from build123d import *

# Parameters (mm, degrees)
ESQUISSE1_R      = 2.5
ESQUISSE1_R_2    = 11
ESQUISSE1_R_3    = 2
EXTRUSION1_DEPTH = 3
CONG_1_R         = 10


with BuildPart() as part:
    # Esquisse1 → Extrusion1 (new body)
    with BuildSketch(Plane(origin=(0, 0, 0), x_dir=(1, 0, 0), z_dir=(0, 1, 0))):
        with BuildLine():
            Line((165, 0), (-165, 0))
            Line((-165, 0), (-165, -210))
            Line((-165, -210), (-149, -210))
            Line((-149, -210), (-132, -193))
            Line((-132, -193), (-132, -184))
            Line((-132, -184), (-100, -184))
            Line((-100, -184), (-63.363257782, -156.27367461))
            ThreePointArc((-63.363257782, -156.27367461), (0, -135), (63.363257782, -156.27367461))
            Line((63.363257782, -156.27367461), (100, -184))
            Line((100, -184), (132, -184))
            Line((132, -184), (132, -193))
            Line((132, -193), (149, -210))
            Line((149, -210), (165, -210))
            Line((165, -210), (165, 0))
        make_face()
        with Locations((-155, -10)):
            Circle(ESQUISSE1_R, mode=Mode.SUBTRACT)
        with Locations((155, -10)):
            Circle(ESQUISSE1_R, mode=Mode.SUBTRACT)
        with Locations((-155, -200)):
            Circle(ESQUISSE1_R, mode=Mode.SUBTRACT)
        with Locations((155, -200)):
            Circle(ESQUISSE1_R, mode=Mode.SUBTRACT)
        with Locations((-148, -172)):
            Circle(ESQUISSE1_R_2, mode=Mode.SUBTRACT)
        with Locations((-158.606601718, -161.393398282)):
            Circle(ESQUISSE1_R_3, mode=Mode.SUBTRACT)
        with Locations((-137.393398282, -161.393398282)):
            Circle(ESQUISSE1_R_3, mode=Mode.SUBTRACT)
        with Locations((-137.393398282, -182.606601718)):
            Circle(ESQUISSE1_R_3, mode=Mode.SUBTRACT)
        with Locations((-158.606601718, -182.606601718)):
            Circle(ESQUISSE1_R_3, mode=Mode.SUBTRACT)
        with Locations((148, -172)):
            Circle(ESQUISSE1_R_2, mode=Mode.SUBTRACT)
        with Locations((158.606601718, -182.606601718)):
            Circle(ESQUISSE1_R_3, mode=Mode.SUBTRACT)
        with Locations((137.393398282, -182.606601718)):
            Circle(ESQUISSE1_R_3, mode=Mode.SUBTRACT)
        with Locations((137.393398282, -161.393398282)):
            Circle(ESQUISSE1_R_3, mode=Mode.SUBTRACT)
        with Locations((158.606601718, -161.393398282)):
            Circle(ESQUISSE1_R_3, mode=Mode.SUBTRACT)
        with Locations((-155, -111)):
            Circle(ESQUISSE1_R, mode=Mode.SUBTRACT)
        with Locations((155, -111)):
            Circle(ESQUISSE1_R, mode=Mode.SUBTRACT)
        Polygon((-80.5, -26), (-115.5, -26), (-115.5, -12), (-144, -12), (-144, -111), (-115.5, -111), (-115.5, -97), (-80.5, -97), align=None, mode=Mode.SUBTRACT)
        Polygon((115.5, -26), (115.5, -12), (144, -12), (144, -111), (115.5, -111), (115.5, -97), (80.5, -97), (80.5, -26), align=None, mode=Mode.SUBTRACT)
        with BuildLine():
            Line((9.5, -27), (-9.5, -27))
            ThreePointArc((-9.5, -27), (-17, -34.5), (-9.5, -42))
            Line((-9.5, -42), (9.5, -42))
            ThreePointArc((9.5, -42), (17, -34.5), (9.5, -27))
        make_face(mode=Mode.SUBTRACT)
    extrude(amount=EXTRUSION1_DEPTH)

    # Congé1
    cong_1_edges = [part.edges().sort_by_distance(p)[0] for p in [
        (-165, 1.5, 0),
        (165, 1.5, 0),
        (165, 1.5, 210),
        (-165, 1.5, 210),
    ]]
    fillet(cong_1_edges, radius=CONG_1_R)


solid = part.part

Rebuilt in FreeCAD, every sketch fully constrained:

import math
import FreeCAD as App
import Part
import Sketcher

V = App.Vector
Q = App.Units.Quantity


def edges_at(feature, points):
    """Names of the edges that pass closest to the given points."""
    edges = feature.Shape.Edges
    near = lambda p: min(range(len(edges)), key=lambda i: edges[i].distToShape(Part.Vertex(*p))[0])
    return sorted({f"Edge{near(p) + 1}" for p in points})


def add_polygon(sketch, points):
    """Adds a closed chain of lines whose ends are joined by coincident constraints."""
    first, n = sketch.GeometryCount, len(points)
    for a, b in zip(points, points[1:] + points[:1]):
        sketch.addGeometry(Part.LineSegment(App.Vector(*a, 0), App.Vector(*b, 0)), False)
    for i in range(n):
        sketch.addConstraint(Sketcher.Constraint("Coincident", first + i, 2, first + (i + 1) % n, 1))

doc = App.newDocument("Part")
body = doc.addObject("PartDesign::Body", "Body")

# Sketch on XZ plane
sketch1 = body.newObject("Sketcher::SketchObject", "Sketch")
sketch1.AttachmentSupport = (doc.getObject("XZ_Plane"), [""])
sketch1.MapMode = "FlatFace"
sketch1.addGeometry(Part.LineSegment(V(165, 0, 0), V(-165, 0, 0)), False)  # 0
sketch1.addGeometry(Part.LineSegment(V(-165, 0, 0), V(-165, 210, 0)), False)  # 1
sketch1.addGeometry(Part.LineSegment(V(-165, 210, 0), V(-149, 210, 0)), False)  # 2
sketch1.addGeometry(Part.LineSegment(V(-149, 210, 0), V(-132, 193, 0)), False)  # 3
sketch1.addGeometry(Part.LineSegment(V(-132, 193, 0), V(-132, 184, 0)), False)  # 4
sketch1.addGeometry(Part.LineSegment(V(-132, 184, 0), V(-100, 184, 0)), False)  # 5
sketch1.addGeometry(Part.LineSegment(V(-100, 184, 0), V(-63.4, 156.3, 0)), False)  # 6
sketch1.addGeometry(Part.ArcOfCircle(Part.Circle(V(0, 240, 0), V(0, 0, 1), 105), math.radians(-127), math.radians(-53)), False)  # 7
sketch1.addGeometry(Part.LineSegment(V(63.4, 156.3, 0), V(100, 184, 0)), False)  # 8
sketch1.addGeometry(Part.LineSegment(V(100, 184, 0), V(132, 184, 0)), False)  # 9
sketch1.addGeometry(Part.LineSegment(V(132, 184, 0), V(132, 193, 0)), False)  # 10
sketch1.addGeometry(Part.LineSegment(V(132, 193, 0), V(149, 210, 0)), False)  # 11
sketch1.addGeometry(Part.LineSegment(V(149, 210, 0), V(165, 210, 0)), False)  # 12
sketch1.addGeometry(Part.LineSegment(V(165, 210, 0), V(165, 0, 0)), False)  # 13
sketch1.addGeometry(Part.Circle(V(-155, 200, 0), V(0, 0, 1), 2.5), False)  # 14
sketch1.addGeometry(Part.Circle(V(-158.6, 182.6, 0), V(0, 0, 1), 2), False)  # 15
sketch1.addGeometry(Part.Circle(V(-137.4, 182.6, 0), V(0, 0, 1), 2), False)  # 16
sketch1.addGeometry(Part.Circle(V(-148, 172, 0), V(0, 0, 1), 11), False)  # 17
sketch1.addGeometry(Part.Circle(V(-158.6, 161.4, 0), V(0, 0, 1), 2), False)  # 18
sketch1.addGeometry(Part.Circle(V(-137.4, 161.4, 0), V(0, 0, 1), 2), False)  # 19
sketch1.addGeometry(Part.Circle(V(-155, 111, 0), V(0, 0, 1), 2.5), False)  # 20
sketch1.addGeometry(Part.Circle(V(155, 200, 0), V(0, 0, 1), 2.5), False)  # 21
sketch1.addGeometry(Part.Circle(V(137.4, 182.6, 0), V(0, 0, 1), 2), False)  # 22
sketch1.addGeometry(Part.Circle(V(158.6, 182.6, 0), V(0, 0, 1), 2), False)  # 23
sketch1.addGeometry(Part.Circle(V(148, 172, 0), V(0, 0, 1), 11), False)  # 24
sketch1.addGeometry(Part.Circle(V(137.4, 161.4, 0), V(0, 0, 1), 2), False)  # 25
sketch1.addGeometry(Part.Circle(V(158.6, 161.4, 0), V(0, 0, 1), 2), False)  # 26
sketch1.addGeometry(Part.Circle(V(155, 111, 0), V(0, 0, 1), 2.5), False)  # 27
add_polygon(sketch1, [(-115.5, 26), (-80.5, 26), (-80.5, 97), (-115.5, 97), (-115.5, 111), (-144, 111), (-144, 12), (-115.5, 12)])  # lines 28-35
sketch1.addGeometry(Part.Circle(V(-155, 10, 0), V(0, 0, 1), 2.5), False)  # 36
add_polygon(sketch1, [(80.5, 26), (115.5, 26), (115.5, 12), (144, 12), (144, 111), (115.5, 111), (115.5, 97), (80.5, 97)])  # lines 37-44
sketch1.addGeometry(Part.LineSegment(V(-9.5, 27, 0), V(9.5, 27, 0)), False)  # 45
sketch1.addGeometry(Part.ArcOfCircle(Part.Circle(V(9.5, 34.5, 0), V(0, 0, 1), 7.5), math.radians(-90), math.radians(90)), False)  # 46
sketch1.addGeometry(Part.LineSegment(V(9.5, 42, 0), V(-9.5, 42, 0)), False)  # 47
sketch1.addGeometry(Part.ArcOfCircle(Part.Circle(V(-9.5, 34.5, 0), V(0, 0, 1), 7.5), math.radians(90), math.radians(270)), False)  # 48
sketch1.addGeometry(Part.Circle(V(155, 10, 0), V(0, 0, 1), 2.5), False)  # 49
sketch1.addConstraint(Sketcher.Constraint("Coincident", 0, 2, 1, 1))
sketch1.addConstraint(Sketcher.Constraint("Coincident", 1, 2, 2, 1))
sketch1.addConstraint(Sketcher.Constraint("Coincident", 2, 2, 3, 1))
sketch1.addConstraint(Sketcher.Constraint("Coincident", 3, 2, 4, 1))
sketch1.addConstraint(Sketcher.Constraint("Coincident", 4, 2, 5, 1))
sketch1.addConstraint(Sketcher.Constraint("Coincident", 5, 2, 6, 1))
sketch1.addConstraint(Sketcher.Constraint("Tangent", 6, 2, 7, 1))
sketch1.addConstraint(Sketcher.Constraint("Tangent", 7, 2, 8, 1))
sketch1.addConstraint(Sketcher.Constraint("Coincident", 8, 2, 9, 1))
sketch1.addConstraint(Sketcher.Constraint("Coincident", 9, 2, 10, 1))
sketch1.addConstraint(Sketcher.Constraint("Coincident", 10, 2, 11, 1))
sketch1.addConstraint(Sketcher.Constraint("Coincident", 11, 2, 12, 1))
sketch1.addConstraint(Sketcher.Constraint("Coincident", 12, 2, 13, 1))
sketch1.addConstraint(Sketcher.Constraint("Coincident", 13, 2, 0, 1))
sketch1.addConstraint(Sketcher.Constraint("Tangent", 45, 2, 46, 1))
sketch1.addConstraint(Sketcher.Constraint("Tangent", 46, 2, 47, 1))
sketch1.addConstraint(Sketcher.Constraint("Tangent", 47, 2, 48, 1))
sketch1.addConstraint(Sketcher.Constraint("Tangent", 48, 2, 45, 1))
sketch1.addConstraint(Sketcher.Constraint("Horizontal", 0))
sketch1.addConstraint(Sketcher.Constraint("Vertical", 1))
sketch1.addConstraint(Sketcher.Constraint("Horizontal", 2))
sketch1.addConstraint(Sketcher.Constraint("Vertical", 4))
sketch1.addConstraint(Sketcher.Constraint("Horizontal", 5))
sketch1.addConstraint(Sketcher.Constraint("Horizontal", 9))
sketch1.addConstraint(Sketcher.Constraint("Vertical", 10))
sketch1.addConstraint(Sketcher.Constraint("Horizontal", 12))
sketch1.addConstraint(Sketcher.Constraint("Vertical", 13))
sketch1.addConstraint(Sketcher.Constraint("Horizontal", 28))
sketch1.addConstraint(Sketcher.Constraint("Vertical", 29))
sketch1.addConstraint(Sketcher.Constraint("Horizontal", 30))
sketch1.addConstraint(Sketcher.Constraint("Vertical", 31))
sketch1.addConstraint(Sketcher.Constraint("Horizontal", 32))
sketch1.addConstraint(Sketcher.Constraint("Vertical", 33))
sketch1.addConstraint(Sketcher.Constraint("Horizontal", 34))
sketch1.addConstraint(Sketcher.Constraint("Vertical", 35))
sketch1.addConstraint(Sketcher.Constraint("Horizontal", 37))
sketch1.addConstraint(Sketcher.Constraint("Vertical", 38))
sketch1.addConstraint(Sketcher.Constraint("Horizontal", 39))
sketch1.addConstraint(Sketcher.Constraint("Vertical", 40))
sketch1.addConstraint(Sketcher.Constraint("Horizontal", 41))
sketch1.addConstraint(Sketcher.Constraint("Vertical", 42))
sketch1.addConstraint(Sketcher.Constraint("Horizontal", 43))
sketch1.addConstraint(Sketcher.Constraint("Vertical", 44))
sketch1.addConstraint(Sketcher.Constraint("Horizontal", 45))
sketch1.addConstraint(Sketcher.Constraint("Horizontal", 47))
sketch1.addConstraint(Sketcher.Constraint("Equal", 15, 16))
sketch1.addConstraint(Sketcher.Constraint("Equal", 16, 18))
sketch1.addConstraint(Sketcher.Constraint("Equal", 18, 19))
sketch1.addConstraint(Sketcher.Constraint("Equal", 14, 20))
sketch1.addConstraint(Sketcher.Constraint("Equal", 20, 21))
sketch1.addConstraint(Sketcher.Constraint("Equal", 19, 22))
sketch1.addConstraint(Sketcher.Constraint("Equal", 22, 23))
sketch1.addConstraint(Sketcher.Constraint("Equal", 17, 24))
sketch1.addConstraint(Sketcher.Constraint("Equal", 23, 25))
sketch1.addConstraint(Sketcher.Constraint("Equal", 25, 26))
sketch1.addConstraint(Sketcher.Constraint("Equal", 21, 27))
sketch1.addConstraint(Sketcher.Constraint("Equal", 27, 36))
sketch1.addConstraint(Sketcher.Constraint("Equal", 36, 49))
sketch1.addConstraint(Sketcher.Constraint("Symmetric", 0, 2, 13, 2, -1, 1))
sketch1.addConstraint(Sketcher.Constraint("Symmetric", 14, 3, 21, 3, -2))
sketch1.addConstraint(Sketcher.Constraint("Symmetric", 16, 3, 22, 3, -2))
sketch1.addConstraint(Sketcher.Constraint("Symmetric", 15, 3, 23, 3, -2))
sketch1.addConstraint(Sketcher.Constraint("Symmetric", 17, 3, 24, 3, -2))
sketch1.addConstraint(Sketcher.Constraint("Symmetric", 19, 3, 25, 3, -2))
sketch1.addConstraint(Sketcher.Constraint("Symmetric", 18, 3, 26, 3, -2))
sketch1.addConstraint(Sketcher.Constraint("Symmetric", 20, 3, 27, 3, -2))
sketch1.addConstraint(Sketcher.Constraint("Symmetric", 36, 3, 49, 3, -2))
sketch1.addConstraint(Sketcher.Constraint("Symmetric", 6, 2, 7, 2, -2))
sketch1.addConstraint(Sketcher.Constraint("Symmetric", 4, 2, 9, 2, -2))
sketch1.addConstraint(Sketcher.Constraint("Symmetric", 2, 2, 11, 2, -2))
sketch1.addConstraint(Sketcher.Constraint("Symmetric", 35, 2, 37, 2, -2))
sketch1.addConstraint(Sketcher.Constraint("Symmetric", 33, 2, 39, 2, -2))
sketch1.addConstraint(Sketcher.Constraint("Symmetric", 31, 2, 41, 2, -2))
sketch1.addConstraint(Sketcher.Constraint("Symmetric", 29, 2, 43, 2, -2))
sketch1.addConstraint(Sketcher.Constraint("Perpendicular", 3, 11))
sketch1.addConstraint(Sketcher.Constraint("Horizontal", 15, 3, 16, 3))
sketch1.addConstraint(Sketcher.Constraint("Horizontal", 18, 3, 19, 3))
sketch1.addConstraint(Sketcher.Constraint("Horizontal", 3, 2, 10, 2))
sketch1.addConstraint(Sketcher.Constraint("Horizontal", 27, 3, 31, 2))
sketch1.addConstraint(Sketcher.Constraint("Vertical", 15, 3, 18, 3))
sketch1.addConstraint(Sketcher.Constraint("Vertical", 16, 3, 19, 3))
sketch1.addConstraint(Sketcher.Constraint("Vertical", 14, 3, 20, 3))
sketch1.addConstraint(Sketcher.Constraint("Vertical", 20, 3, 36, 3))
sketch1.addConstraint(Sketcher.Constraint("Vertical", 31, 2, 34, 2))
sketch1.addConstraint(Sketcher.Constraint("Equal", 31, 35))
sketch1.addConstraint(Sketcher.Constraint("Diameter", 14, Q("5 mm")))
sketch1.addConstraint(Sketcher.Constraint("Diameter", 15, Q("4 mm")))
sketch1.addConstraint(Sketcher.Constraint("Diameter", 17, Q("22 mm")))
sketch1.addConstraint(Sketcher.Constraint("Radius", 7, Q("105 mm")))
sketch1.addConstraint(Sketcher.Constraint("Radius", 46, Q("7.5 mm")))
sketch1.addConstraint(Sketcher.Constraint("DistanceX", 0, 2, 0, 1, Q("330 mm")))
sketch1.addConstraint(Sketcher.Constraint("DistanceX", 2, 1, 2, 2, Q("16 mm")))
sketch1.addConstraint(Sketcher.Constraint("DistanceX", 5, 1, 5, 2, Q("32 mm")))
sketch1.addConstraint(Sketcher.Constraint("DistanceX", 28, 1, 28, 2, Q("35 mm")))
sketch1.addConstraint(Sketcher.Constraint("DistanceX", 45, 1, 45, 2, Q("19 mm")))
sketch1.addConstraint(Sketcher.Constraint("DistanceY", 1, 1, 1, 2, Q("210 mm")))
sketch1.addConstraint(Sketcher.Constraint("DistanceY", 4, 2, 4, 1, Q("9 mm")))
sketch1.addConstraint(Sketcher.Constraint("DistanceY", 29, 1, 29, 2, Q("71 mm")))
sketch1.addConstraint(Sketcher.Constraint("DistanceY", 31, 1, 31, 2, Q("14 mm")))
sketch1.addConstraint(Sketcher.Constraint("DistanceX", 32, 2, 32, 1, Q("28.5 mm")))
sketch1.addConstraint(Sketcher.Constraint("DistanceY", -1, 1, 7, 3, Q("240 mm")))
sketch1.addConstraint(Sketcher.Constraint("DistanceX", 14, 3, -1, 1, Q("155 mm")))
sketch1.addConstraint(Sketcher.Constraint("DistanceY", -1, 1, 14, 3, Q("200 mm")))
sketch1.addConstraint(Sketcher.Constraint("DistanceX", 17, 3, -1, 1, Q("148 mm")))
sketch1.addConstraint(Sketcher.Constraint("DistanceY", -1, 1, 17, 3, Q("172 mm")))
sketch1.addConstraint(Sketcher.Constraint("DistanceY", -1, 1, 20, 3, Q("111 mm")))
sketch1.addConstraint(Sketcher.Constraint("DistanceY", -1, 1, 36, 3, Q("10 mm")))
sketch1.addConstraint(Sketcher.Constraint("DistanceX", 3, 2, -1, 1, Q("132 mm")))
sketch1.addConstraint(Sketcher.Constraint("DistanceX", 32, 2, -1, 1, Q("144 mm")))
sketch1.addConstraint(Sketcher.Constraint("DistanceY", -1, 1, 45, 2, Q("27 mm")))
sketch1.addConstraint(Sketcher.Constraint("DistanceX", 16, 3, 23, 3, Q("296 mm")))
sketch1.addConstraint(Sketcher.Constraint("DistanceX", 28, 2, 48, 3, Q("71 mm")))
sketch1.addConstraint(Sketcher.Constraint("DistanceX", 15, 3, -1, 1, Q("158.606602 mm")))
sketch1.addConstraint(Sketcher.Constraint("DistanceY", -1, 1, 15, 3, Q("182.606602 mm")))
sketch1.addConstraint(Sketcher.Constraint("DistanceY", -1, 1, 18, 3, Q("161.393398 mm")))
pad1 = body.newObject("PartDesign::Pad", "Pad")
pad1.Profile = sketch1
pad1.Length = 3
pad1.Reversed = True
doc.recompute()

fillet = body.newObject("PartDesign::Fillet", "Fillet")
fillet.Base = (pad1, edges_at(pad1, [
    (-165, 1.5, 0),
    (165, 1.5, 0),
    (165, 1.5, 210),
    (-165, 1.5, 210),
]))
fillet.Radius = 10

doc.recompute()
